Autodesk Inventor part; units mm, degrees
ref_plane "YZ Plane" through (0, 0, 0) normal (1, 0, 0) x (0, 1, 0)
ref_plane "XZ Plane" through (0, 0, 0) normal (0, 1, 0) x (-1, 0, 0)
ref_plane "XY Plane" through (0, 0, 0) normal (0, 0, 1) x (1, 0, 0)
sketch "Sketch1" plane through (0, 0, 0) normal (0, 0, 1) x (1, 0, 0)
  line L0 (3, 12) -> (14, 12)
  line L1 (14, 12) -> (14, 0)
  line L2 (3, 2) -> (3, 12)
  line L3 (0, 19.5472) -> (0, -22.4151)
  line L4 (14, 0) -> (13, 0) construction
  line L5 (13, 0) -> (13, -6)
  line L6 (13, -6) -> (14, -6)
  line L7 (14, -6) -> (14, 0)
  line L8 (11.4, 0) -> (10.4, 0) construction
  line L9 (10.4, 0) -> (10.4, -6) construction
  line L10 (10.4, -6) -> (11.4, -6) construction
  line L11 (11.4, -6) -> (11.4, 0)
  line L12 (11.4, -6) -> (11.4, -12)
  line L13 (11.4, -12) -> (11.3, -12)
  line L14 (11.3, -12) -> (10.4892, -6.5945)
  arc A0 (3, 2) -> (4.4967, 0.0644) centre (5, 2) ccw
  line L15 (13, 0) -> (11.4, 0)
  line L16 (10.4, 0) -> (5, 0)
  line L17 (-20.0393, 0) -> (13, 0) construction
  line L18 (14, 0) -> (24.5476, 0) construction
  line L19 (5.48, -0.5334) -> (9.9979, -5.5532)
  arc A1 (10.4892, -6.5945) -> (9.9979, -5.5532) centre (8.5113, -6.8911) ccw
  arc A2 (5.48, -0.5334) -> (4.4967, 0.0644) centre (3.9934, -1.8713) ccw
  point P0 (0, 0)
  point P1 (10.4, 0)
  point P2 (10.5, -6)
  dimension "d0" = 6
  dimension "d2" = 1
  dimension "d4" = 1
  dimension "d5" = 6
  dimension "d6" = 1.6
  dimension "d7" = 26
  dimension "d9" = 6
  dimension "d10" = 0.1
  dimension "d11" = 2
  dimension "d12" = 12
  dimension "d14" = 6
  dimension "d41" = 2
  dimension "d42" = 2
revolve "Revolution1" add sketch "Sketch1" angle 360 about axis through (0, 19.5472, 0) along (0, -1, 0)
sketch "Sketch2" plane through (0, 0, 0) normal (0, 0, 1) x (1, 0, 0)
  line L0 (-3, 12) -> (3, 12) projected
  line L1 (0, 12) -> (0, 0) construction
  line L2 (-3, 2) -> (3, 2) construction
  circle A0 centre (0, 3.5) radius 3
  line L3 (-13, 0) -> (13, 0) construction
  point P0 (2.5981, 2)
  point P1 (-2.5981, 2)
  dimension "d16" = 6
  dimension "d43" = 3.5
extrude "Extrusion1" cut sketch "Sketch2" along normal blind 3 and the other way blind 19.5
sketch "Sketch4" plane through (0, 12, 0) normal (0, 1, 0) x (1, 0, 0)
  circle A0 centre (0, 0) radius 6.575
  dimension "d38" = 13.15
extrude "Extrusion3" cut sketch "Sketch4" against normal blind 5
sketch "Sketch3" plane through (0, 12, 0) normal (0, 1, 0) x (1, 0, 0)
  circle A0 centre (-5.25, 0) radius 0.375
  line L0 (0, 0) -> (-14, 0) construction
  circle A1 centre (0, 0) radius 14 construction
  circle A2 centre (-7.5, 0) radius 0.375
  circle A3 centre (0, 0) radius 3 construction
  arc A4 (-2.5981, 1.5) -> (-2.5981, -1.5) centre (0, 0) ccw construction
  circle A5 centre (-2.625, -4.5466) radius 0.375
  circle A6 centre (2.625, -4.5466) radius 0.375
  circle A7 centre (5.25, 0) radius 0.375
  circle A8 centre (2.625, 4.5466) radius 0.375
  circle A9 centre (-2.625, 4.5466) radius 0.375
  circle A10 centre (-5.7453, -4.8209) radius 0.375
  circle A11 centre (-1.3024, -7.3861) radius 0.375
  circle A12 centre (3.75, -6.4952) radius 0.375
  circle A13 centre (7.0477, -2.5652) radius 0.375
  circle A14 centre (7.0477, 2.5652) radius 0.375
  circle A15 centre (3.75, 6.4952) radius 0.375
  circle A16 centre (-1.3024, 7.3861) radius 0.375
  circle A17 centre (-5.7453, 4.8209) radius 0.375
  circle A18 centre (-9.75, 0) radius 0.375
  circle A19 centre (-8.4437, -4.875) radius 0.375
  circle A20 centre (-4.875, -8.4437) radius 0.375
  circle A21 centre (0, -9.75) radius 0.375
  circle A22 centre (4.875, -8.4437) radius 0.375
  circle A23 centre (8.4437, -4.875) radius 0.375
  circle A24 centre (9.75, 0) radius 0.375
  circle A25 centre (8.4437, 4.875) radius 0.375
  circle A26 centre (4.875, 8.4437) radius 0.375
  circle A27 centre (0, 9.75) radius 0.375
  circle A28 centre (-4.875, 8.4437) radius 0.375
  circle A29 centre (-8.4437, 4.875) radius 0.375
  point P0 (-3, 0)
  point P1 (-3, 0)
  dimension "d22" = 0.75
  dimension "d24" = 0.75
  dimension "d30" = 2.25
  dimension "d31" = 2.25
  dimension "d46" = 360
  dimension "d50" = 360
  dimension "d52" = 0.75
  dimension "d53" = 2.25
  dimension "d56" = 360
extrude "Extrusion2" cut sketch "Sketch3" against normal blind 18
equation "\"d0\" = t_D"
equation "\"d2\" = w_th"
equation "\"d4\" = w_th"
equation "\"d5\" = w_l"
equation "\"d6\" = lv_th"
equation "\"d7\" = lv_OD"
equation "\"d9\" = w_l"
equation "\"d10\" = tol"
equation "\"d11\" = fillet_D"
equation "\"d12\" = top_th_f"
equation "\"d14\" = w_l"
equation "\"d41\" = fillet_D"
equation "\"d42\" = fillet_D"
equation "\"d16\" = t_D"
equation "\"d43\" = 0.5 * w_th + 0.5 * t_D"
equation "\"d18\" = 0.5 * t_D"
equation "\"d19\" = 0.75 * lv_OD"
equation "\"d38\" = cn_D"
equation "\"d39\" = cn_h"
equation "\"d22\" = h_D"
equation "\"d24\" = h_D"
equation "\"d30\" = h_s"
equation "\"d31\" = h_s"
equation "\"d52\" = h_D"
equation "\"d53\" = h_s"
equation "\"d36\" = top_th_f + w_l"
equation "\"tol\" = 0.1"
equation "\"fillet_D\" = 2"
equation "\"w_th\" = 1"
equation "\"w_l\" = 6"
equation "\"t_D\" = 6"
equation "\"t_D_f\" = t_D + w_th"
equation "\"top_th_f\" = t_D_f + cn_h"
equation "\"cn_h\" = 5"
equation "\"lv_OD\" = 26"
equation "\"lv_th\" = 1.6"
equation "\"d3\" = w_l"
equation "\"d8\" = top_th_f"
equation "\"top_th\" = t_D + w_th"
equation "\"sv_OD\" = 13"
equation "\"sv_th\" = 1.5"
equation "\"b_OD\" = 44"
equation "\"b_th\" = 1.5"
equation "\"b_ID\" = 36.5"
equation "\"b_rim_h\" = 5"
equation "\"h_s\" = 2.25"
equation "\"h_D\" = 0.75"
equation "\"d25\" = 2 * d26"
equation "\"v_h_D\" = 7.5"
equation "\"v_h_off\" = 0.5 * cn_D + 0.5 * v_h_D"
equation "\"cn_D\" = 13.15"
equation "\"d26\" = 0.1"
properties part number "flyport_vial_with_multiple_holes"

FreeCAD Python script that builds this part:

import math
import FreeCAD as App
import Part
import Sketcher
Q = App.Units.Quantity

doc = App.newDocument("Part")
body = doc.addObject("PartDesign::Body", "Body")

# Sketch on XY plane
sketch1 = doc.addObject("Sketcher::SketchObject", "Sketch")
body.addObject(sketch1)
sketch1.AttachmentSupport = (doc.XY_Plane, [""])
sketch1.MapMode = "FlatFace"
sketch1.addGeometry([
    Part.LineSegment(App.Vector(14, 12, 0), App.Vector(3, 12, 0)),  # 0
    Part.LineSegment(App.Vector(3, 12, 0), App.Vector(3, 2, 0)),  # 1
    Part.ArcOfCircle(Part.Circle(App.Vector(5, 2, 0), App.Vector(0, 0, 1), 2), math.radians(180), math.radians(255)),  # 2
    Part.ArcOfCircle(Part.Circle(App.Vector(3.99, -1.87, 0), App.Vector(0, 0, 1), 2), math.radians(42), math.radians(75)),  # 3
    Part.LineSegment(App.Vector(5.48, -0.53, 0), App.Vector(10, -5.55, 0)),  # 4
    Part.ArcOfCircle(Part.Circle(App.Vector(8.51, -6.89, 0), App.Vector(0, 0, 1), 2), math.radians(9), math.radians(42)),  # 5
    Part.LineSegment(App.Vector(10.49, -6.59, 0), App.Vector(11.3, -12, 0)),  # 6
    Part.LineSegment(App.Vector(11.3, -12, 0), App.Vector(11.4, -12, 0)),  # 7
    Part.LineSegment(App.Vector(11.4, -12, 0), App.Vector(11.4, 0, 0)),  # 8
    Part.LineSegment(App.Vector(11.4, 0, 0), App.Vector(13, 0, 0)),  # 9
    Part.LineSegment(App.Vector(13, 0, 0), App.Vector(13, -6, 0)),  # 10
    Part.LineSegment(App.Vector(13, -6, 0), App.Vector(14, -6, 0)),  # 11
    Part.LineSegment(App.Vector(14, -6, 0), App.Vector(14, 12, 0)),  # 12
], False)
sketch1.addConstraint([
    Sketcher.Constraint("Coincident", 0, 2, 1, 1),
    Sketcher.Constraint("Tangent", 1, 2, 2, 1),
    Sketcher.Constraint("Tangent", 2, 2, 3, 2),
    Sketcher.Constraint("Tangent", 3, 1, 4, 1),
    Sketcher.Constraint("Tangent", 4, 2, 5, 2),
    Sketcher.Constraint("Tangent", 5, 1, 6, 1),
    Sketcher.Constraint("Coincident", 6, 2, 7, 1),
    Sketcher.Constraint("Coincident", 7, 2, 8, 1),
    Sketcher.Constraint("Coincident", 8, 2, 9, 1),
    Sketcher.Constraint("Coincident", 9, 2, 10, 1),
    Sketcher.Constraint("Coincident", 10, 2, 11, 1),
    Sketcher.Constraint("Coincident", 11, 2, 12, 1),
    Sketcher.Constraint("Coincident", 12, 2, 0, 1),
    Sketcher.Constraint("Horizontal", 0),
    Sketcher.Constraint("Vertical", 1),
    Sketcher.Constraint("Horizontal", 7),
    Sketcher.Constraint("Vertical", 8),
    Sketcher.Constraint("Horizontal", 9),
    Sketcher.Constraint("Vertical", 10),
    Sketcher.Constraint("Horizontal", 11),
    Sketcher.Constraint("Vertical", 12),
    Sketcher.Constraint("Equal", 2, 3),
    Sketcher.Constraint("Equal", 3, 5),
    Sketcher.Constraint("PointOnObject", 8, 2, -1),
    Sketcher.Constraint("Radius", 2, Q("2 mm")),
    Sketcher.Constraint("DistanceX", 11, 1, 11, 2, Q("1 mm")),
    Sketcher.Constraint("DistanceY", 8, 1, 8, 2, Q("12 mm")),
    Sketcher.Constraint("DistanceY", 10, 2, 10, 1, Q("6 mm")),
    Sketcher.Constraint("DistanceX", 7, 1, 7, 2, Q("0.1 mm")),
    Sketcher.Constraint("DistanceX", 9, 1, 9, 2, Q("1.6 mm")),
    Sketcher.Constraint("DistanceY", -1, 1, 2, 3, Q("2 mm")),
    Sketcher.Constraint("DistanceY", -1, 1, 0, 2, Q("12 mm")),
    Sketcher.Constraint("DistanceX", 0, 2, 0, 1, Q("11 mm")),
    Sketcher.Constraint("DistanceX", -1, 1, 2, 3, Q("5 mm")),
    Sketcher.Constraint("Angle", 6, Q("-81.4695 deg")),
    Sketcher.Constraint("DistanceX", -1, 1, 3, 1, Q("5.48 mm")),
    Sketcher.Constraint("Distance", 6, Q("5.466 mm")),
])
revolution = doc.addObject("PartDesign::Revolution", "Revolution")
body.addObject(revolution)
revolution.Profile = sketch1
revolution.ReferenceAxis = (sketch1, ["V_Axis"])
revolution.Angle = 360

# Sketch on XY plane
sketch2 = doc.addObject("Sketcher::SketchObject", "Sketch001")
body.addObject(sketch2)
sketch2.AttachmentSupport = (doc.XY_Plane, [""])
sketch2.MapMode = "FlatFace"
sketch2.addGeometry(Part.Circle(App.Vector(0, 3.5, 0), App.Vector(0, 0, 1), 3), False)
sketch2.addConstraint([
    Sketcher.Constraint("PointOnObject", 0, 3, -2),
    Sketcher.Constraint("Diameter", 0, Q("6 mm")),
    Sketcher.Constraint("DistanceY", -1, 1, 0, 3, Q("3.5 mm")),
])
pocket1 = doc.addObject("PartDesign::Pocket", "Pocket")
body.addObject(pocket1)
pocket1.Profile = sketch2
pocket1.Type = "TwoLengths"
pocket1.Length = 3
pocket1.Length2 = 19.5
pocket1.Reversed = True

# Sketch on XZ plane
sketch3 = doc.addObject("Sketcher::SketchObject", "Sketch002")
body.addObject(sketch3)
sketch3.AttachmentSupport = (doc.XZ_Plane, [""])
sketch3.MapMode = "FlatFace"
sketch3.AttachmentOffset = App.Placement(App.Vector(0, 0, -12), App.Rotation())
sketch3.addGeometry(Part.Circle(App.Vector(0, 0, 0), App.Vector(0, 0, 1), 7), False)
sketch3.addConstraint([
    Sketcher.Constraint("Coincident", 0, 3, -1, 1),
    Sketcher.Constraint("Diameter", 0, Q("13.15 mm")),
])
pocket2 = doc.addObject("PartDesign::Pocket", "Pocket001")
body.addObject(pocket2)
pocket2.Profile = sketch3
pocket2.Length = 5
pocket2.Reversed = True

# Sketch on XZ plane
sketch4 = doc.addObject("Sketcher::SketchObject", "Sketch003")
body.addObject(sketch4)
sketch4.AttachmentSupport = (doc.XZ_Plane, [""])
sketch4.MapMode = "FlatFace"
sketch4.AttachmentOffset = App.Placement(App.Vector(0, 0, -12), App.Rotation())
sketch4.addGeometry([
    Part.Circle(App.Vector(-5.25, 0, 0), App.Vector(0, 0, 1), 0.38),  # 0
    Part.Circle(App.Vector(-7.5, 0, 0), App.Vector(0, 0, 1), 0.38),  # 1
    Part.Circle(App.Vector(-2.62, 4.55, 0), App.Vector(0, 0, 1), 0.38),  # 2
    Part.Circle(App.Vector(2.62, 4.55, 0), App.Vector(0, 0, 1), 0.38),  # 3
    Part.Circle(App.Vector(5.25, 0, 0), App.Vector(0, 0, 1), 0.38),  # 4
    Part.Circle(App.Vector(2.62, -4.55, 0), App.Vector(0, 0, 1), 0.38),  # 5
    Part.Circle(App.Vector(-2.62, -4.55, 0), App.Vector(0, 0, 1), 0.38),  # 6
    Part.Circle(App.Vector(-5.75, 4.82, 0), App.Vector(0, 0, 1), 0.38),  # 7
    Part.Circle(App.Vector(-1.3, 7.39, 0), App.Vector(0, 0, 1), 0.38),  # 8
    Part.Circle(App.Vector(3.75, 6.5, 0), App.Vector(0, 0, 1), 0.38),  # 9
    Part.Circle(App.Vector(7.05, 2.57, 0), App.Vector(0, 0, 1), 0.38),  # 10
    Part.Circle(App.Vector(7.05, -2.57, 0), App.Vector(0, 0, 1), 0.38),  # 11
    Part.Circle(App.Vector(3.75, -6.5, 0), App.Vector(0, 0, 1), 0.38),  # 12
    Part.Circle(App.Vector(-1.3, -7.39, 0), App.Vector(0, 0, 1), 0.38),  # 13
    Part.Circle(App.Vector(-5.75, -4.82, 0), App.Vector(0, 0, 1), 0.38),  # 14
    Part.Circle(App.Vector(-9.75, 0, 0), App.Vector(0, 0, 1), 0.38),  # 15
    Part.Circle(App.Vector(-8.44, 4.88, 0), App.Vector(0, 0, 1), 0.38),  # 16
    Part.Circle(App.Vector(-4.88, 8.44, 0), App.Vector(0, 0, 1), 0.38),  # 17
    Part.Circle(App.Vector(0, 9.75, 0), App.Vector(0, 0, 1), 0.38),  # 18
    Part.Circle(App.Vector(4.88, 8.44, 0), App.Vector(0, 0, 1), 0.38),  # 19
    Part.Circle(App.Vector(8.44, 4.88, 0), App.Vector(0, 0, 1), 0.38),  # 20
    Part.Circle(App.Vector(9.75, 0, 0), App.Vector(0, 0, 1), 0.38),  # 21
    Part.Circle(App.Vector(8.44, -4.88, 0), App.Vector(0, 0, 1), 0.38),  # 22
    Part.Circle(App.Vector(4.88, -8.44, 0), App.Vector(0, 0, 1), 0.38),  # 23
    Part.Circle(App.Vector(0, -9.75, 0), App.Vector(0, 0, 1), 0.38),  # 24
    Part.Circle(App.Vector(-4.88, -8.44, 0), App.Vector(0, 0, 1), 0.38),  # 25
    Part.Circle(App.Vector(-8.44, -4.88, 0), App.Vector(0, 0, 1), 0.38),  # 26
], False)
sketch4.addConstraint([
    Sketcher.Constraint("Equal", 0, 1),
    Sketcher.Constraint("Equal", 1, 2),
    Sketcher.Constraint("Equal", 2, 3),
    Sketcher.Constraint("Equal", 3, 4),
    Sketcher.Constraint("Equal", 4, 5),
    Sketcher.Constraint("Equal", 5, 6),
    Sketcher.Constraint("Equal", 6, 7),
    Sketcher.Constraint("Equal", 7, 8),
    Sketcher.Constraint("Equal", 8, 9),
    Sketcher.Constraint("Equal", 9, 10),
    Sketcher.Constraint("Equal", 10, 11),
    Sketcher.Constraint("Equal", 11, 12),
    Sketcher.Constraint("Equal", 12, 13),
    Sketcher.Constraint("Equal", 13, 14),
    Sketcher.Constraint("Equal", 14, 15),
    Sketcher.Constraint("Equal", 15, 16),
    Sketcher.Constraint("Equal", 16, 17),
    Sketcher.Constraint("Equal", 17, 18),
    Sketcher.Constraint("Equal", 18, 19),
    Sketcher.Constraint("Equal", 19, 20),
    Sketcher.Constraint("Equal", 20, 21),
    Sketcher.Constraint("Equal", 21, 22),
    Sketcher.Constraint("Equal", 22, 23),
    Sketcher.Constraint("Equal", 23, 24),
    Sketcher.Constraint("Equal", 24, 25),
    Sketcher.Constraint("Equal", 25, 26),
    Sketcher.Constraint("Symmetric", 0, 3, 4, 3, -1, 1),
    Sketcher.Constraint("Symmetric", 2, 3, 5, 3, -1, 1),
    Sketcher.Constraint("Symmetric", 3, 3, 6, 3, -1, 1),
    Sketcher.Constraint("Symmetric", 15, 3, 21, 3, -1, 1),
    Sketcher.Constraint("Symmetric", 16, 3, 22, 3, -1, 1),
    Sketcher.Constraint("Symmetric", 17, 3, 23, 3, -1, 1),
    Sketcher.Constraint("Symmetric", 18, 3, 24, 3, -1, 1),
    Sketcher.Constraint("Symmetric", 19, 3, 25, 3, -1, 1),
    Sketcher.Constraint("Symmetric", 20, 3, 26, 3, -1, 1),
    Sketcher.Constraint("Symmetric", 2, 3, 3, 3, -2),
    Sketcher.Constraint("Symmetric", 17, 3, 19, 3, -2),
    Sketcher.Constraint("Symmetric", 16, 3, 20, 3, -2),
    Sketcher.Constraint("Symmetric", 10, 3, 11, 3, -1),
    Sketcher.Constraint("Symmetric", 9, 3, 12, 3, -1),
    Sketcher.Constraint("Symmetric", 8, 3, 13, 3, -1),
    Sketcher.Constraint("Symmetric", 7, 3, 14, 3, -1),
    Sketcher.Constraint("PointOnObject", 0, 3, -1),
    Sketcher.Constraint("PointOnObject", 1, 3, -1),
    Sketcher.Constraint("PointOnObject", 15, 3, -1),
    Sketcher.Constraint("PointOnObject", 18, 3, -2),
    Sketcher.Constraint("Diameter", 0, Q("0.75 mm")),
    Sketcher.Constraint("DistanceX", 1, 3, 0, 3, Q("2.25 mm")),
    Sketcher.Constraint("DistanceX", 15, 3, 1, 3, Q("2.25 mm")),
    Sketcher.Constraint("DistanceX", 17, 3, 2, 3, Q("2.25 mm")),
    Sketcher.Constraint("DistanceX", 1, 3, -1, 1, Q("7.5 mm")),
    Sketcher.Constraint("DistanceX", 9, 3, 4, 3, Q("1.5 mm")),
    Sketcher.Constraint("DistanceY", -1, 1, 18, 3, Q("9.75 mm")),
    Sketcher.Constraint("DistanceX", 2, 3, 3, 3, Q("5.25 mm")),
    Sketcher.Constraint("DistanceY", 10, 3, 9, 3, Q("3.93 mm")),
    Sketcher.Constraint("DistanceX", 8, 3, 10, 3, Q("8.35 mm")),
    Sketcher.Constraint("DistanceY", -1, 1, 7, 3, Q("4.821 mm")),
    Sketcher.Constraint("DistanceY", -1, 1, 8, 3, Q("7.386 mm")),
    Sketcher.Constraint("DistanceY", -1, 1, 16, 3, Q("4.875 mm")),
    Sketcher.Constraint("DistanceX", 7, 3, 8, 3, Q("4.443 mm")),
    Sketcher.Constraint("DistanceY", 9, 3, 8, 3, Q("0.891 mm")),
    Sketcher.Constraint("DistanceY", 2, 3, 17, 3, Q("3.897 mm")),
    Sketcher.Constraint("DistanceX", 10, 3, 20, 3, Q("1.396 mm")),
    Sketcher.Constraint("DistanceY", -1, 1, 2, 3, Q("4.5466 mm")),
    Sketcher.Constraint("DistanceX", 7, 3, -1, 1, Q("5.7453 mm")),
])
pocket3 = doc.addObject("PartDesign::Pocket", "Pocket002")
body.addObject(pocket3)
pocket3.Profile = sketch4
pocket3.Length = 18
pocket3.Reversed = True

doc.recompute()
